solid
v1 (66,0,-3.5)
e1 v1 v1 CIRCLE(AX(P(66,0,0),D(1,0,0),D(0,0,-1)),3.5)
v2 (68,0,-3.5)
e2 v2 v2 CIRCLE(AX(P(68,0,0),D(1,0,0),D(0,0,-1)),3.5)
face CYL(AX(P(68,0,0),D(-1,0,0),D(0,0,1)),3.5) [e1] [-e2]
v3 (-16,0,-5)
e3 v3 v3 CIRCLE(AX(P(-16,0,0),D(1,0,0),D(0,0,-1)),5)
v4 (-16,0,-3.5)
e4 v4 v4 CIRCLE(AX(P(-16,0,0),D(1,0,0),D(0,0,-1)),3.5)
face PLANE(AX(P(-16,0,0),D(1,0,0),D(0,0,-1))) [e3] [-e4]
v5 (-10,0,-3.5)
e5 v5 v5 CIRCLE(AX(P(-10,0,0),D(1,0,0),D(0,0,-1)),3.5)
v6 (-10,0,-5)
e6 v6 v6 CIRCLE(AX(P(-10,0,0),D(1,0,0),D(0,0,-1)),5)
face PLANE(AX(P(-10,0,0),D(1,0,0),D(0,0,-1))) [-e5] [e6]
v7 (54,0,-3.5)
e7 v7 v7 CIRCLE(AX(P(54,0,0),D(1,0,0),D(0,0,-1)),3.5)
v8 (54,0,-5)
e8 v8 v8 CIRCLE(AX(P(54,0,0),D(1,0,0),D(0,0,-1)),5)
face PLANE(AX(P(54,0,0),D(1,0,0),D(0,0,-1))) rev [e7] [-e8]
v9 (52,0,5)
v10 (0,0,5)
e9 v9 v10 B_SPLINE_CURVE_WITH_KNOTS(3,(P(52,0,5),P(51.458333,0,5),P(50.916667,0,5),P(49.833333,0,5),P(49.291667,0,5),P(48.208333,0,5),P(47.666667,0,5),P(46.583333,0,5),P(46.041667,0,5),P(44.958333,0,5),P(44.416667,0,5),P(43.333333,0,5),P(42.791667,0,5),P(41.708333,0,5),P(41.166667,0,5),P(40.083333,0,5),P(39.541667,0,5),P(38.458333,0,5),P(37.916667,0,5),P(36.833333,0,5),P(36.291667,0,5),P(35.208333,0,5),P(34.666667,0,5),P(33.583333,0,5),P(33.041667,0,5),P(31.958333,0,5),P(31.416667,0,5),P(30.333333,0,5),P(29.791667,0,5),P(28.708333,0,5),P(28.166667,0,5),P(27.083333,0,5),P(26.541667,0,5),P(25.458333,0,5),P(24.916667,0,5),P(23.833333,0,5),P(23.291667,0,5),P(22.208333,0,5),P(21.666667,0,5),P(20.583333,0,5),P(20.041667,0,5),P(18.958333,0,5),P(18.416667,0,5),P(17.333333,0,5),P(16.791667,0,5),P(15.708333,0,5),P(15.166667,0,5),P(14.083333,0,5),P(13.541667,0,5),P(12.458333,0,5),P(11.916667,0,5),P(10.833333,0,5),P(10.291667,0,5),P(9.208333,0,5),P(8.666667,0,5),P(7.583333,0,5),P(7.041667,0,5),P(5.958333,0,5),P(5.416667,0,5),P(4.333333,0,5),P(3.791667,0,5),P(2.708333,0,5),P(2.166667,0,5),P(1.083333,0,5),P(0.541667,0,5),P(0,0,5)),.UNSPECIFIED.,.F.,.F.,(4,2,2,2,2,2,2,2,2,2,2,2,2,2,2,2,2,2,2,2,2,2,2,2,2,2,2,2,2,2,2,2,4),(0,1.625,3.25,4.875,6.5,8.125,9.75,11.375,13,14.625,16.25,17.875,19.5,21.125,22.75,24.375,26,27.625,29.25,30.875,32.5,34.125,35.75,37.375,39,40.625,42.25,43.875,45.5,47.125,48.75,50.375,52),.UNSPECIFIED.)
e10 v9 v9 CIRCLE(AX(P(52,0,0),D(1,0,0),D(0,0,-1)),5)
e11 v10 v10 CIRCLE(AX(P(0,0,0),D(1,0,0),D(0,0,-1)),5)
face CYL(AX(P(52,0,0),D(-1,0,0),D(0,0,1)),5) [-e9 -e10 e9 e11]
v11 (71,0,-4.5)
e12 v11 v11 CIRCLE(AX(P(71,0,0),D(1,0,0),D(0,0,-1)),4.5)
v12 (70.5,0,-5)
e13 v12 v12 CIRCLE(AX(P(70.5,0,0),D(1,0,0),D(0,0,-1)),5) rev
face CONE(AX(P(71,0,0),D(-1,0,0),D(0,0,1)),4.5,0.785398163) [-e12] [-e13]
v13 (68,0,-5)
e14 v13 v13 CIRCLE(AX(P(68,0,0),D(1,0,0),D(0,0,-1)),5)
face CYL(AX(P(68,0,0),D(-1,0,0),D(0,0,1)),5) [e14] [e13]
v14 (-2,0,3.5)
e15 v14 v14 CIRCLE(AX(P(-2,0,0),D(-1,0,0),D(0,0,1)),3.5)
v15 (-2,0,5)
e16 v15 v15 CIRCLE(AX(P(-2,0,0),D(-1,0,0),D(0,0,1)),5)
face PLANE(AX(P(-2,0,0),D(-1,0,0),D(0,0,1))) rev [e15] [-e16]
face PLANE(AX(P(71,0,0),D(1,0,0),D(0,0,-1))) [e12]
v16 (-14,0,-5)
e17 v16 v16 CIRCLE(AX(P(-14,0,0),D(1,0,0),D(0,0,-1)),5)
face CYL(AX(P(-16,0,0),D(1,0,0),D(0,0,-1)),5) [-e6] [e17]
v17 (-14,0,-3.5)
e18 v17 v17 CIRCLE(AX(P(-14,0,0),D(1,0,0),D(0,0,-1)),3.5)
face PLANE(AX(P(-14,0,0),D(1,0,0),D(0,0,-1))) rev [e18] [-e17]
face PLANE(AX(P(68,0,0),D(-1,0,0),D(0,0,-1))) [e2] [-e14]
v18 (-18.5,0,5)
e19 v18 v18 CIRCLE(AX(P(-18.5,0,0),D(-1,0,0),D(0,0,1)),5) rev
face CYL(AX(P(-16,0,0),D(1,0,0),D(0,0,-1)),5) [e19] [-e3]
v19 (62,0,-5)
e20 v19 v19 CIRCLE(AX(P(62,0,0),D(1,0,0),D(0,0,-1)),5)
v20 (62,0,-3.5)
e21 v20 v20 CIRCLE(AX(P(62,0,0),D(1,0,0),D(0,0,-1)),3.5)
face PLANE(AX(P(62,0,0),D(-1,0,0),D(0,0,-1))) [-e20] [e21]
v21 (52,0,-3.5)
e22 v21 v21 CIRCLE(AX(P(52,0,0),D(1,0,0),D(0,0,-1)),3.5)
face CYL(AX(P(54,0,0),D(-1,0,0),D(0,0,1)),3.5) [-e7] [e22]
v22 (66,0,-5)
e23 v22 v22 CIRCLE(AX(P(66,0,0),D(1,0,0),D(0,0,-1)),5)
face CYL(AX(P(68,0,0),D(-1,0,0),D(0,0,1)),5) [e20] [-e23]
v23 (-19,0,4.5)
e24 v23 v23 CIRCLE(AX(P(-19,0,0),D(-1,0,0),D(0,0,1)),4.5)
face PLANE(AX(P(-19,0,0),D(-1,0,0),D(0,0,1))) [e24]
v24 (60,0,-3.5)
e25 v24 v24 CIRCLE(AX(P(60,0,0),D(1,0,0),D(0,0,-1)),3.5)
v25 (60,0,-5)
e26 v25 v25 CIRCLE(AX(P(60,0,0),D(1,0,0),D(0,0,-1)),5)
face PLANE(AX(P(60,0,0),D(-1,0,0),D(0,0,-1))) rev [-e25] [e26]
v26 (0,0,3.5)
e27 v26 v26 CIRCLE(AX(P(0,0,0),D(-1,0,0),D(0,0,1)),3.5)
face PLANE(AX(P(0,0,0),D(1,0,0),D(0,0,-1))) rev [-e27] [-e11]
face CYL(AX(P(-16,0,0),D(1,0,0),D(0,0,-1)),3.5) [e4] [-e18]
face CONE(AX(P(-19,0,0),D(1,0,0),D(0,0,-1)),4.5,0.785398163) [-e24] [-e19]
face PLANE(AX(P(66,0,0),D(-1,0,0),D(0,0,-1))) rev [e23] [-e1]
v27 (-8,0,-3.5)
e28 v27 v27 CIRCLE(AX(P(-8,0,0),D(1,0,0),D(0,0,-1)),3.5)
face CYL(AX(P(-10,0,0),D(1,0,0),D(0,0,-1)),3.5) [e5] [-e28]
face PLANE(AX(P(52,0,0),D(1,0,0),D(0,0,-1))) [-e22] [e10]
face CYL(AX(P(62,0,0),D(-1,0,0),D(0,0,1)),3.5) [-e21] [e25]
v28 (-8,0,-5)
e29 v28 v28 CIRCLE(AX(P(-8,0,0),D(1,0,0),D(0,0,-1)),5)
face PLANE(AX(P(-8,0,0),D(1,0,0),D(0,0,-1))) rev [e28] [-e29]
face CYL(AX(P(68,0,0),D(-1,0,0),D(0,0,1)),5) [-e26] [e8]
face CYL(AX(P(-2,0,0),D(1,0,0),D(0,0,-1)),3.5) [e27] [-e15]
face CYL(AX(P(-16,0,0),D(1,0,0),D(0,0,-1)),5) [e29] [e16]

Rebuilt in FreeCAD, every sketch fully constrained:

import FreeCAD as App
import Part
import Sketcher
from FreeCAD import Vector
Q = App.Units.Quantity


def edges_at(feature, points):
    """Names of the edges that pass closest to the given points."""
    edges = feature.Shape.Edges
    near = lambda p: min(range(len(edges)), key=lambda i: edges[i].distToShape(Part.Vertex(*p))[0])
    return sorted({f"Edge{near(p) + 1}" for p in points})

doc = App.newDocument("Part")
body = doc.addObject("PartDesign::Body", "Body")

# Sketch on YZ plane
sketch1 = body.newObject("Sketcher::SketchObject", "Sketch")
sketch1.AttachmentSupport = (doc.getObject("YZ_Plane"), [""])
sketch1.MapMode = "FlatFace"
sketch1.addGeometry(Part.Circle(Vector(0, 0, 0), Vector(0, 0, 1), 5), False)
sketch1.addConstraint([
    Sketcher.Constraint("Coincident", 0, 3, -1, 1),
    Sketcher.Constraint("Diameter", 0, Q("10 mm")),
])
pad1 = body.newObject("PartDesign::Pad", "Pad")
pad1.Profile = sketch1
pad1.Length = 52

# Sketch on YZ plane
sketch2 = body.newObject("Sketcher::SketchObject", "Sketch001")
sketch2.AttachmentSupport = (doc.getObject("YZ_Plane"), [""])
sketch2.MapMode = "FlatFace"
sketch2.AttachmentOffset = App.Placement(Vector(0, 0, 52), App.Rotation())
sketch2.addGeometry(Part.Circle(Vector(0, 0, 0), Vector(0, 0, 1), 3.5), False)
sketch2.addConstraint([
    Sketcher.Constraint("Coincident", 0, 3, -1, 1),
    Sketcher.Constraint("Diameter", 0, Q("7 mm")),
])
pad2 = body.newObject("PartDesign::Pad", "Pad001")
pad2.Profile = sketch2
pad2.Length = 2

# Sketch on YZ plane
sketch3 = body.newObject("Sketcher::SketchObject", "Sketch002")
sketch3.AttachmentSupport = (doc.getObject("YZ_Plane"), [""])
sketch3.MapMode = "FlatFace"
sketch3.AttachmentOffset = App.Placement(Vector(0, 0, 54), App.Rotation())
sketch3.addGeometry(Part.Circle(Vector(0, 0, 0), Vector(0, 0, 1), 5), False)
sketch3.addConstraint([
    Sketcher.Constraint("Coincident", 0, 3, -1, 1),
    Sketcher.Constraint("Diameter", 0, Q("10 mm")),
])
pad3 = body.newObject("PartDesign::Pad", "Pad002")
pad3.Profile = sketch3
pad3.Length = 14

# Sketch on YZ plane
sketch4 = body.newObject("Sketcher::SketchObject", "Sketch003")
sketch4.AttachmentSupport = (doc.getObject("YZ_Plane"), [""])
sketch4.MapMode = "FlatFace"
sketch4.AttachmentOffset = App.Placement(Vector(0, 0, 68), App.Rotation())
sketch4.addGeometry(Part.Circle(Vector(0, 0, 0), Vector(0, 0, 1), 5), False)
sketch4.addConstraint([
    Sketcher.Constraint("Coincident", 0, 3, -1, 1),
    Sketcher.Constraint("Diameter", 0, Q("10 mm")),
])
pad4 = body.newObject("PartDesign::Pad", "Pad003")
pad4.Profile = sketch4
pad4.Length = 2

# Sketch on YZ plane
sketch5 = body.newObject("Sketcher::SketchObject", "Sketch004")
sketch5.AttachmentSupport = (doc.getObject("YZ_Plane"), [""])
sketch5.MapMode = "FlatFace"
sketch5.AttachmentOffset = App.Placement(Vector(0, 0, 70), App.Rotation())
sketch5.addGeometry(Part.Circle(Vector(0, 0, 0), Vector(0, 0, 1), 5), False)
sketch5.addConstraint([
    Sketcher.Constraint("Coincident", 0, 3, -1, 1),
    Sketcher.Constraint("Diameter", 0, Q("10 mm")),
])
pad5 = body.newObject("PartDesign::Pad", "Pad004")
pad5.Profile = sketch5
pad5.Length = 4

# Sketch on YZ plane
sketch6 = body.newObject("Sketcher::SketchObject", "Sketch005")
sketch6.AttachmentSupport = (doc.getObject("YZ_Plane"), [""])
sketch6.MapMode = "FlatFace"
sketch6.AttachmentOffset = App.Placement(Vector(0, 0, 74), App.Rotation())
sketch6.addGeometry(Part.Circle(Vector(0, 0, 0), Vector(0, 0, 1), 5), False)
sketch6.addConstraint([
    Sketcher.Constraint("Coincident", 0, 3, -1, 1),
    Sketcher.Constraint("Diameter", 0, Q("10 mm")),
])
pad6 = body.newObject("PartDesign::Pad", "Pad005")
pad6.Profile = sketch6
pad6.Length = 2

# Sketch on YZ plane
sketch7 = body.newObject("Sketcher::SketchObject", "Sketch006")
sketch7.AttachmentSupport = (doc.getObject("YZ_Plane"), [""])
sketch7.MapMode = "FlatFace"
sketch7.AttachmentOffset = App.Placement(Vector(0, 0, 76), App.Rotation())
sketch7.addGeometry(Part.Circle(Vector(0, 0, 0), Vector(0, 0, 1), 5), False)
sketch7.addConstraint([
    Sketcher.Constraint("Coincident", 0, 3, -1, 1),
    Sketcher.Constraint("Diameter", 0, Q("10 mm")),
])
pad7 = body.newObject("PartDesign::Pad", "Pad006")
pad7.Profile = sketch7
pad7.Length = 10

# Sketch on YZ plane
sketch8 = body.newObject("Sketcher::SketchObject", "Sketch007")
sketch8.AttachmentSupport = (doc.getObject("YZ_Plane"), [""])
sketch8.MapMode = "FlatFace"
sketch8.AttachmentOffset = App.Placement(Vector(0, 0, -2), App.Rotation())
sketch8.addGeometry(Part.Circle(Vector(0, 0, 0), Vector(0, 0, 1), 3.5), False)
sketch8.addConstraint([
    Sketcher.Constraint("Coincident", 0, 3, -1, 1),
    Sketcher.Constraint("Diameter", 0, Q("7 mm")),
])
pad8 = body.newObject("PartDesign::Pad", "Pad007")
pad8.Profile = sketch8
pad8.Length = 2

# Sketch on YZ plane
sketch9 = body.newObject("Sketcher::SketchObject", "Sketch008")
sketch9.AttachmentSupport = (doc.getObject("YZ_Plane"), [""])
sketch9.MapMode = "FlatFace"
sketch9.AttachmentOffset = App.Placement(Vector(0, 0, -16), App.Rotation())
sketch9.addGeometry(Part.Circle(Vector(0, 0, 0), Vector(0, 0, 1), 5), False)
sketch9.addConstraint([
    Sketcher.Constraint("Coincident", 0, 3, -1, 1),
    Sketcher.Constraint("Diameter", 0, Q("10 mm")),
])
pad9 = body.newObject("PartDesign::Pad", "Pad008")
pad9.Profile = sketch9
pad9.Length = 14

# Sketch on YZ plane
sketch10 = body.newObject("Sketcher::SketchObject", "Sketch009")
sketch10.AttachmentSupport = (doc.getObject("YZ_Plane"), [""])
sketch10.MapMode = "FlatFace"
sketch10.AttachmentOffset = App.Placement(Vector(0, 0, -18), App.Rotation())
sketch10.addGeometry(Part.Circle(Vector(0, 0, 0), Vector(0, 0, 1), 5), False)
sketch10.addConstraint([
    Sketcher.Constraint("Coincident", 0, 3, -1, 1),
    Sketcher.Constraint("Diameter", 0, Q("10 mm")),
])
pad10 = body.newObject("PartDesign::Pad", "Pad009")
pad10.Profile = sketch10
pad10.Length = 2

# Sketch on YZ plane
sketch11 = body.newObject("Sketcher::SketchObject", "Sketch010")
sketch11.AttachmentSupport = (doc.getObject("YZ_Plane"), [""])
sketch11.MapMode = "FlatFace"
sketch11.AttachmentOffset = App.Placement(Vector(0, 0, -22), App.Rotation())
sketch11.addGeometry(Part.Circle(Vector(0, 0, 0), Vector(0, 0, 1), 5), False)
sketch11.addConstraint([
    Sketcher.Constraint("Coincident", 0, 3, -1, 1),
    Sketcher.Constraint("Diameter", 0, Q("10 mm")),
])
pad11 = body.newObject("PartDesign::Pad", "Pad010")
pad11.Profile = sketch11
pad11.Length = 4

# Sketch on YZ plane
sketch12 = body.newObject("Sketcher::SketchObject", "Sketch011")
sketch12.AttachmentSupport = (doc.getObject("YZ_Plane"), [""])
sketch12.MapMode = "FlatFace"
sketch12.AttachmentOffset = App.Placement(Vector(0, 0, -24), App.Rotation())
sketch12.addGeometry(Part.Circle(Vector(0, 0, 0), Vector(0, 0, 1), 5), False)
sketch12.addConstraint([
    Sketcher.Constraint("Coincident", 0, 3, -1, 1),
    Sketcher.Constraint("Diameter", 0, Q("10 mm")),
])
pad12 = body.newObject("PartDesign::Pad", "Pad011")
pad12.Profile = sketch12
pad12.Length = 2

# Sketch on YZ plane
sketch13 = body.newObject("Sketcher::SketchObject", "Sketch012")
sketch13.AttachmentSupport = (doc.getObject("YZ_Plane"), [""])
sketch13.MapMode = "FlatFace"
sketch13.AttachmentOffset = App.Placement(Vector(0, 0, -34), App.Rotation())
sketch13.addGeometry(Part.Circle(Vector(0, 0, 0), Vector(0, 0, 1), 5), False)
sketch13.addConstraint([
    Sketcher.Constraint("Coincident", 0, 3, -1, 1),
    Sketcher.Constraint("Diameter", 0, Q("10 mm")),
])
pad13 = body.newObject("PartDesign::Pad", "Pad012")
pad13.Profile = sketch13
pad13.Length = 10
doc.recompute()

chamfer = body.newObject("PartDesign::Chamfer", "Chamfer")
chamfer.Base = (pad13, edges_at(pad13, [(86, 0, -5), (-34, 0, -5)]))
chamfer.Size = 0.5

# Sketch on YZ plane
sketch14 = body.newObject("Sketcher::SketchObject", "Sketch013")
sketch14.AttachmentSupport = (doc.getObject("YZ_Plane"), [""])
sketch14.MapMode = "FlatFace"
sketch14.AttachmentOffset = App.Placement(Vector(0, 0, -10), App.Rotation())
sketch14.addGeometry([
    Part.Circle(Vector(0, 0, 0), Vector(0, 0, 1), 5),
    Part.Circle(Vector(0, 0, 0), Vector(0, 0, 1), 3.5),
], False)
sketch14.addConstraint([
    Sketcher.Constraint("Coincident", 0, 3, -1, 1),
    Sketcher.Constraint("Coincident", 1, 3, -1, 1),
    Sketcher.Constraint("Diameter", 0, Q("10 mm")),
    Sketcher.Constraint("Diameter", 1, Q("7 mm")),
])
pocket1 = body.newObject("PartDesign::Pocket", "Pocket")
pocket1.Profile = sketch14
pocket1.Length = 2
pocket1.Reversed = True

# Sketch on YZ plane
sketch15 = body.newObject("Sketcher::SketchObject", "Sketch014")
sketch15.AttachmentSupport = (doc.getObject("YZ_Plane"), [""])
sketch15.MapMode = "FlatFace"
sketch15.AttachmentOffset = App.Placement(Vector(0, 0, -16), App.Rotation())
sketch15.addGeometry([
    Part.Circle(Vector(0, 0, 0), Vector(0, 0, 1), 5),
    Part.Circle(Vector(0, 0, 0), Vector(0, 0, 1), 3.5),
], False)
sketch15.addConstraint([
    Sketcher.Constraint("Coincident", 0, 3, -1, 1),
    Sketcher.Constraint("Coincident", 1, 3, -1, 1),
    Sketcher.Constraint("Diameter", 0, Q("10 mm")),
    Sketcher.Constraint("Diameter", 1, Q("7 mm")),
])
pocket2 = body.newObject("PartDesign::Pocket", "Pocket001")
pocket2.Profile = sketch15
pocket2.Length = 2
pocket2.Reversed = True
doc.recompute()

datumplane = body.newObject("PartDesign::Plane", "DatumPlane")
datumplane.AttachmentSupport = (doc.getObject("YZ_Plane"), [""])
datumplane.MapMode = "FlatFace"
datumplane.AttachmentOffset = App.Placement(Vector(0, 0, 26), App.Rotation())
mirrored = body.newObject("PartDesign::Mirrored", "Mirrored")
mirrored.Originals = [pocket1, pocket2]
mirrored.MirrorPlane = (datumplane, [""])
body.Tip = mirrored

# Sketch on YZ plane
sketch16 = body.newObject("Sketcher::SketchObject", "Sketch015")
sketch16.AttachmentSupport = (doc.getObject("YZ_Plane"), [""])
sketch16.MapMode = "FlatFace"
sketch16.AttachmentOffset = App.Placement(Vector(0, 0, 71), App.Rotation())
sketch16.addGeometry(Part.Circle(Vector(0, 0, 0), Vector(0, 0, 1), 5), False)
sketch16.addConstraint([
    Sketcher.Constraint("Coincident", 0, 3, -1, 1),
    Sketcher.Constraint("Diameter", 0, Q("10 mm")),
])
pocket3 = body.newObject("PartDesign::Pocket", "Pocket002")
pocket3.Profile = sketch16
pocket3.Length = 15
pocket3.Reversed = True

# Sketch on YZ plane
sketch17 = body.newObject("Sketcher::SketchObject", "Sketch016")
sketch17.AttachmentSupport = (doc.getObject("YZ_Plane"), [""])
sketch17.MapMode = "FlatFace"
sketch17.AttachmentOffset = App.Placement(Vector(0, 0, -34), App.Rotation())
sketch17.addGeometry(Part.Circle(Vector(0, 0, 0), Vector(0, 0, 1), 5), False)
sketch17.addConstraint([
    Sketcher.Constraint("Coincident", 0, 3, -1, 1),
    Sketcher.Constraint("Diameter", 0, Q("10 mm")),
])
pocket4 = body.newObject("PartDesign::Pocket", "Pocket003")
pocket4.Profile = sketch17
pocket4.Length = 15
pocket4.Reversed = True
doc.recompute()

chamfer2 = body.newObject("PartDesign::Chamfer", "Chamfer001")
chamfer2.Base = (pocket4, edges_at(pocket4, [(-19, 0, -5), (71, 0, -5)]))
chamfer2.Size = 0.5

doc.recompute()
